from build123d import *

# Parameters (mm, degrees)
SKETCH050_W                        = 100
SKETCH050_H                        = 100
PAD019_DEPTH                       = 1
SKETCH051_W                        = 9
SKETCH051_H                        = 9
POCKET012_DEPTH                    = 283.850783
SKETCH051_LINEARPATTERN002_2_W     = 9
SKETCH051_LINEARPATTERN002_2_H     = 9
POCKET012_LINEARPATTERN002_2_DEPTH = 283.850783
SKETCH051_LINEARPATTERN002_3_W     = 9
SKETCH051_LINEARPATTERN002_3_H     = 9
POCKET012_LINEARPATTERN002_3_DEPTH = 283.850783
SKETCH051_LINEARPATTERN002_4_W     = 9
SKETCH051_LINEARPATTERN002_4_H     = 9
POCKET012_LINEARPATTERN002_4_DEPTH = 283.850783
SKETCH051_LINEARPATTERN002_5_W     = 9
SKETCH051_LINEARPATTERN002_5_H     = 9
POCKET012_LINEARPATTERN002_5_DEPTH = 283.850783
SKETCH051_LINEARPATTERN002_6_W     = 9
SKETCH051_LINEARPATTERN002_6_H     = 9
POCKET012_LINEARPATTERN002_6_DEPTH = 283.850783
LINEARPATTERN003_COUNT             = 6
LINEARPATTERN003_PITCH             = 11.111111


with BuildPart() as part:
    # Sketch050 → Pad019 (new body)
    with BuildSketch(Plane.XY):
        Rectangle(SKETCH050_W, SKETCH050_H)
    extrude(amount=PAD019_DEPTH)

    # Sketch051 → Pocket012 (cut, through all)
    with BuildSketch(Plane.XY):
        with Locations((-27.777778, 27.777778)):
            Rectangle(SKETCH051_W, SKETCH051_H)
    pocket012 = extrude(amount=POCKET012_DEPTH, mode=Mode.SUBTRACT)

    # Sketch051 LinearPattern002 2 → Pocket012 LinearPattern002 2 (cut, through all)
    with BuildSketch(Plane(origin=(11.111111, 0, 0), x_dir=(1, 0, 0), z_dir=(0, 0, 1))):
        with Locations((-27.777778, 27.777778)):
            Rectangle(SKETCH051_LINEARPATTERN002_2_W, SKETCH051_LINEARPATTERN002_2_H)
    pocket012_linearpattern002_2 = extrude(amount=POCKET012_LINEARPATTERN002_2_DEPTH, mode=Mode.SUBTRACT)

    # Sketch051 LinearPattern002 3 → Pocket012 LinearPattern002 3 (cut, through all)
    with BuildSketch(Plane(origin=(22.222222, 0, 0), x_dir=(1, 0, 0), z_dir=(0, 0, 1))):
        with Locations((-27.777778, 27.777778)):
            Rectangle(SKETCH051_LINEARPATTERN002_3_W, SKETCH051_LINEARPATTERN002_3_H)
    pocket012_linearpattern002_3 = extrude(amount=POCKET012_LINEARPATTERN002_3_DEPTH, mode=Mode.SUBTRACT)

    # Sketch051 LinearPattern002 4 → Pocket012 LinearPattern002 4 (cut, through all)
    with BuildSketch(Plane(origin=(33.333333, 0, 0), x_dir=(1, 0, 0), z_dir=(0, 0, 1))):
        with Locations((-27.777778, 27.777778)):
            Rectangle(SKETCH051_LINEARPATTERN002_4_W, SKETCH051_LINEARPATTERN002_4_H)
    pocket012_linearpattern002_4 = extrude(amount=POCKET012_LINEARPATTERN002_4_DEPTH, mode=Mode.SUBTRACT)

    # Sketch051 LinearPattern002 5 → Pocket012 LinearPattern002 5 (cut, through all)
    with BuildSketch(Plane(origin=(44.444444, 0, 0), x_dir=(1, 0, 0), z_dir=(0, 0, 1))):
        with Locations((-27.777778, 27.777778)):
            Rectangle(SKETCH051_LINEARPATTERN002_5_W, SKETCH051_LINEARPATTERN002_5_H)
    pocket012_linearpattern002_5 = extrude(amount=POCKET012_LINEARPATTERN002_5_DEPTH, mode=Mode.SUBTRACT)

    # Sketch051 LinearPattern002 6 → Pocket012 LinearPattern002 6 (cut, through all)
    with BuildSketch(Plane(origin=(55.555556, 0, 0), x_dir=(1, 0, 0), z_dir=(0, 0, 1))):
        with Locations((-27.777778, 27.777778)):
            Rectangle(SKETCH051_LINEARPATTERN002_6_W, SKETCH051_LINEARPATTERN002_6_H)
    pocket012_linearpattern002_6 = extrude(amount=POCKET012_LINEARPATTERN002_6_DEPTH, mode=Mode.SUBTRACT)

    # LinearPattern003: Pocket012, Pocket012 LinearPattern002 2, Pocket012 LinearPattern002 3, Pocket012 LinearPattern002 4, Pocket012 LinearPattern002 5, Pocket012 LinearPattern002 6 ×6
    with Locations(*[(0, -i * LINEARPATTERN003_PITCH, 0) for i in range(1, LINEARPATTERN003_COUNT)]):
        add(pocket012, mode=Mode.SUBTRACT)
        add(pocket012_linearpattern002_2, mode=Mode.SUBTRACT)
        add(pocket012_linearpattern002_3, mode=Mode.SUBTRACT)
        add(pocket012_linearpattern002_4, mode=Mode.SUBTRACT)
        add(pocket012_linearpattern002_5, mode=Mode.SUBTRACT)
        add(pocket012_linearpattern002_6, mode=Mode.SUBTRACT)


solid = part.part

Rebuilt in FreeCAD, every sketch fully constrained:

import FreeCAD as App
import Part
import Sketcher
from FreeCAD import Vector


def add_polygon(sketch, points):
    """Adds a closed chain of lines whose ends are joined by coincident constraints."""
    first, n = sketch.GeometryCount, len(points)
    for a, b in zip(points, points[1:] + points[:1]):
        sketch.addGeometry(Part.LineSegment(App.Vector(*a, 0), App.Vector(*b, 0)), False)
    for i in range(n):
        sketch.addConstraint(Sketcher.Constraint("Coincident", first + i, 2, first + (i + 1) % n, 1))

doc = App.newDocument("Part")
body = doc.addObject("PartDesign::Body", "Body")

sketch1 = body.newObject("Sketcher::SketchObject", "Sketch")
sketch1.AttachmentSupport = (doc.getObject("XY_Plane"), [""])
sketch1.MapMode = "FlatFace"
add_polygon(sketch1, [(-50, 50), (-50, -50), (50, -50), (50, 50)])
sketch1.addConstraint(Sketcher.Constraint("Vertical", 0))
sketch1.addConstraint(Sketcher.Constraint("Horizontal", 1))
sketch1.addConstraint(Sketcher.Constraint("Vertical", 2))
sketch1.addConstraint(Sketcher.Constraint("Horizontal", 3))
sketch1.addConstraint(Sketcher.Constraint("Symmetric", 0, 2, 2, 2, -1, 1))
sketch1.addConstraint(Sketcher.Constraint("Equal", 3, 0))
sketch1.addConstraint(Sketcher.Constraint("DistanceX", 1, 1, 1, 2, 100.0))
pad1 = body.newObject("PartDesign::Pad", "Pad")
pad1.Profile = sketch1
pad1.Length = 1

sketch2 = body.newObject("Sketcher::SketchObject", "Sketch001")
sketch2.AttachmentSupport = (doc.getObject("XY_Plane"), [""])
sketch2.MapMode = "FlatFace"
add_polygon(sketch2, [(-32.277778, 32.277778), (-32.277778, 23.277778), (-23.277778, 23.277778), (-23.277778, 32.277778)])
sketch2.addConstraint(Sketcher.Constraint("Vertical", 0))
sketch2.addConstraint(Sketcher.Constraint("Horizontal", 1))
sketch2.addConstraint(Sketcher.Constraint("Vertical", 2))
sketch2.addConstraint(Sketcher.Constraint("Horizontal", 3))
sketch2.addConstraint(Sketcher.Constraint("Equal", 3, 0))
sketch2.addConstraint(Sketcher.Constraint("DistanceX", 1, 1, 1, 2, 9.0))
sketch2.addConstraint(Sketcher.Constraint("DistanceY", -1, 1, 0, 2, 23.277778))
sketch2.addConstraint(Sketcher.Constraint("DistanceX", 1, 2, -1, 1, 23.277778))
pocket1 = body.newObject("PartDesign::Pocket", "Pocket")
pocket1.Profile = sketch2
pocket1.Type = "ThroughAll"
pocket1.Reversed = True

sketch3 = body.newObject("Sketcher::SketchObject", "Sketch002")
sketch3.AttachmentSupport = (doc.getObject("XY_Plane"), [""])
sketch3.MapMode = "FlatFace"
add_polygon(sketch3, [(-21.166667, 32.277778), (-21.166667, 23.277778), (-12.166667, 23.277778), (-12.166667, 32.277778)])
sketch3.addConstraint(Sketcher.Constraint("Vertical", 0))
sketch3.addConstraint(Sketcher.Constraint("Horizontal", 1))
sketch3.addConstraint(Sketcher.Constraint("Vertical", 2))
sketch3.addConstraint(Sketcher.Constraint("Horizontal", 3))
sketch3.addConstraint(Sketcher.Constraint("Equal", 3, 0))
sketch3.addConstraint(Sketcher.Constraint("DistanceX", 1, 1, 1, 2, 9.0))
sketch3.addConstraint(Sketcher.Constraint("DistanceY", -1, 1, 0, 2, 23.277778))
sketch3.addConstraint(Sketcher.Constraint("DistanceX", 0, 2, -1, 1, 21.166667))
pocket2 = body.newObject("PartDesign::Pocket", "Pocket001")
pocket2.Profile = sketch3
pocket2.Type = "ThroughAll"
pocket2.Reversed = True

sketch4 = body.newObject("Sketcher::SketchObject", "Sketch003")
sketch4.AttachmentSupport = (doc.getObject("XY_Plane"), [""])
sketch4.MapMode = "FlatFace"
add_polygon(sketch4, [(-10.055556, 32.277778), (-10.055556, 23.277778), (-1.055556, 23.277778), (-1.055556, 32.277778)])
sketch4.addConstraint(Sketcher.Constraint("Vertical", 0))
sketch4.addConstraint(Sketcher.Constraint("Horizontal", 1))
sketch4.addConstraint(Sketcher.Constraint("Vertical", 2))
sketch4.addConstraint(Sketcher.Constraint("Horizontal", 3))
sketch4.addConstraint(Sketcher.Constraint("Equal", 3, 0))
sketch4.addConstraint(Sketcher.Constraint("DistanceX", 1, 1, 1, 2, 9.0))
sketch4.addConstraint(Sketcher.Constraint("DistanceY", -1, 1, 0, 2, 23.277778))
sketch4.addConstraint(Sketcher.Constraint("DistanceX", 0, 2, -1, 1, 10.055556))
pocket3 = body.newObject("PartDesign::Pocket", "Pocket002")
pocket3.Profile = sketch4
pocket3.Type = "ThroughAll"
pocket3.Reversed = True

sketch5 = body.newObject("Sketcher::SketchObject", "Sketch004")
sketch5.AttachmentSupport = (doc.getObject("XY_Plane"), [""])
sketch5.MapMode = "FlatFace"
add_polygon(sketch5, [(1.055555, 32.277778), (1.055555, 23.277778), (10.055555, 23.277778), (10.055555, 32.277778)])
sketch5.addConstraint(Sketcher.Constraint("Vertical", 0))
sketch5.addConstraint(Sketcher.Constraint("Horizontal", 1))
sketch5.addConstraint(Sketcher.Constraint("Vertical", 2))
sketch5.addConstraint(Sketcher.Constraint("Horizontal", 3))
sketch5.addConstraint(Sketcher.Constraint("Equal", 3, 0))
sketch5.addConstraint(Sketcher.Constraint("DistanceX", 1, 1, 1, 2, 9.0))
sketch5.addConstraint(Sketcher.Constraint("DistanceY", -1, 1, 0, 2, 23.277778))
sketch5.addConstraint(Sketcher.Constraint("DistanceX", -1, 1, 0, 2, 1.055555))
pocket4 = body.newObject("PartDesign::Pocket", "Pocket003")
pocket4.Profile = sketch5
pocket4.Type = "ThroughAll"
pocket4.Reversed = True

sketch6 = body.newObject("Sketcher::SketchObject", "Sketch005")
sketch6.AttachmentSupport = (doc.getObject("XY_Plane"), [""])
sketch6.MapMode = "FlatFace"
add_polygon(sketch6, [(12.166666, 32.277778), (12.166666, 23.277778), (21.166666, 23.277778), (21.166666, 32.277778)])
sketch6.addConstraint(Sketcher.Constraint("Vertical", 0))
sketch6.addConstraint(Sketcher.Constraint("Horizontal", 1))
sketch6.addConstraint(Sketcher.Constraint("Vertical", 2))
sketch6.addConstraint(Sketcher.Constraint("Horizontal", 3))
sketch6.addConstraint(Sketcher.Constraint("Equal", 3, 0))
sketch6.addConstraint(Sketcher.Constraint("DistanceX", 1, 1, 1, 2, 9.0))
sketch6.addConstraint(Sketcher.Constraint("DistanceY", -1, 1, 0, 2, 23.277778))
sketch6.addConstraint(Sketcher.Constraint("DistanceX", -1, 1, 0, 2, 12.166666))
pocket5 = body.newObject("PartDesign::Pocket", "Pocket004")
pocket5.Profile = sketch6
pocket5.Type = "ThroughAll"
pocket5.Reversed = True

sketch7 = body.newObject("Sketcher::SketchObject", "Sketch006")
sketch7.AttachmentSupport = (doc.getObject("XY_Plane"), [""])
sketch7.MapMode = "FlatFace"
add_polygon(sketch7, [(23.277778, 32.277778), (23.277778, 23.277778), (32.277778, 23.277778), (32.277778, 32.277778)])
sketch7.addConstraint(Sketcher.Constraint("Vertical", 0))
sketch7.addConstraint(Sketcher.Constraint("Horizontal", 1))
sketch7.addConstraint(Sketcher.Constraint("Vertical", 2))
sketch7.addConstraint(Sketcher.Constraint("Horizontal", 3))
sketch7.addConstraint(Sketcher.Constraint("Equal", 3, 0))
sketch7.addConstraint(Sketcher.Constraint("DistanceX", 1, 1, 1, 2, 9.0))
sketch7.addConstraint(Sketcher.Constraint("DistanceX", -1, 1, 0, 2, 23.277778))
sketch7.addConstraint(Sketcher.Constraint("DistanceY", -1, 1, 0, 2, 23.277778))
pocket6 = body.newObject("PartDesign::Pocket", "Pocket005")
pocket6.Profile = sketch7
pocket6.Type = "ThroughAll"
pocket6.Reversed = True
doc.recompute()

linearpattern = body.newObject("PartDesign::LinearPattern", "LinearPattern")
linearpattern.Originals = [pocket1, pocket2, pocket3, pocket4, pocket5, pocket6]
linearpattern.Direction = (doc.getObject("Y_Axis"), [""])
linearpattern.Mode = "offset"
linearpattern.Offset = 11.111111
linearpattern.Occurrences = 6
linearpattern.Reversed = True
body.Tip = linearpattern

doc.recompute()
